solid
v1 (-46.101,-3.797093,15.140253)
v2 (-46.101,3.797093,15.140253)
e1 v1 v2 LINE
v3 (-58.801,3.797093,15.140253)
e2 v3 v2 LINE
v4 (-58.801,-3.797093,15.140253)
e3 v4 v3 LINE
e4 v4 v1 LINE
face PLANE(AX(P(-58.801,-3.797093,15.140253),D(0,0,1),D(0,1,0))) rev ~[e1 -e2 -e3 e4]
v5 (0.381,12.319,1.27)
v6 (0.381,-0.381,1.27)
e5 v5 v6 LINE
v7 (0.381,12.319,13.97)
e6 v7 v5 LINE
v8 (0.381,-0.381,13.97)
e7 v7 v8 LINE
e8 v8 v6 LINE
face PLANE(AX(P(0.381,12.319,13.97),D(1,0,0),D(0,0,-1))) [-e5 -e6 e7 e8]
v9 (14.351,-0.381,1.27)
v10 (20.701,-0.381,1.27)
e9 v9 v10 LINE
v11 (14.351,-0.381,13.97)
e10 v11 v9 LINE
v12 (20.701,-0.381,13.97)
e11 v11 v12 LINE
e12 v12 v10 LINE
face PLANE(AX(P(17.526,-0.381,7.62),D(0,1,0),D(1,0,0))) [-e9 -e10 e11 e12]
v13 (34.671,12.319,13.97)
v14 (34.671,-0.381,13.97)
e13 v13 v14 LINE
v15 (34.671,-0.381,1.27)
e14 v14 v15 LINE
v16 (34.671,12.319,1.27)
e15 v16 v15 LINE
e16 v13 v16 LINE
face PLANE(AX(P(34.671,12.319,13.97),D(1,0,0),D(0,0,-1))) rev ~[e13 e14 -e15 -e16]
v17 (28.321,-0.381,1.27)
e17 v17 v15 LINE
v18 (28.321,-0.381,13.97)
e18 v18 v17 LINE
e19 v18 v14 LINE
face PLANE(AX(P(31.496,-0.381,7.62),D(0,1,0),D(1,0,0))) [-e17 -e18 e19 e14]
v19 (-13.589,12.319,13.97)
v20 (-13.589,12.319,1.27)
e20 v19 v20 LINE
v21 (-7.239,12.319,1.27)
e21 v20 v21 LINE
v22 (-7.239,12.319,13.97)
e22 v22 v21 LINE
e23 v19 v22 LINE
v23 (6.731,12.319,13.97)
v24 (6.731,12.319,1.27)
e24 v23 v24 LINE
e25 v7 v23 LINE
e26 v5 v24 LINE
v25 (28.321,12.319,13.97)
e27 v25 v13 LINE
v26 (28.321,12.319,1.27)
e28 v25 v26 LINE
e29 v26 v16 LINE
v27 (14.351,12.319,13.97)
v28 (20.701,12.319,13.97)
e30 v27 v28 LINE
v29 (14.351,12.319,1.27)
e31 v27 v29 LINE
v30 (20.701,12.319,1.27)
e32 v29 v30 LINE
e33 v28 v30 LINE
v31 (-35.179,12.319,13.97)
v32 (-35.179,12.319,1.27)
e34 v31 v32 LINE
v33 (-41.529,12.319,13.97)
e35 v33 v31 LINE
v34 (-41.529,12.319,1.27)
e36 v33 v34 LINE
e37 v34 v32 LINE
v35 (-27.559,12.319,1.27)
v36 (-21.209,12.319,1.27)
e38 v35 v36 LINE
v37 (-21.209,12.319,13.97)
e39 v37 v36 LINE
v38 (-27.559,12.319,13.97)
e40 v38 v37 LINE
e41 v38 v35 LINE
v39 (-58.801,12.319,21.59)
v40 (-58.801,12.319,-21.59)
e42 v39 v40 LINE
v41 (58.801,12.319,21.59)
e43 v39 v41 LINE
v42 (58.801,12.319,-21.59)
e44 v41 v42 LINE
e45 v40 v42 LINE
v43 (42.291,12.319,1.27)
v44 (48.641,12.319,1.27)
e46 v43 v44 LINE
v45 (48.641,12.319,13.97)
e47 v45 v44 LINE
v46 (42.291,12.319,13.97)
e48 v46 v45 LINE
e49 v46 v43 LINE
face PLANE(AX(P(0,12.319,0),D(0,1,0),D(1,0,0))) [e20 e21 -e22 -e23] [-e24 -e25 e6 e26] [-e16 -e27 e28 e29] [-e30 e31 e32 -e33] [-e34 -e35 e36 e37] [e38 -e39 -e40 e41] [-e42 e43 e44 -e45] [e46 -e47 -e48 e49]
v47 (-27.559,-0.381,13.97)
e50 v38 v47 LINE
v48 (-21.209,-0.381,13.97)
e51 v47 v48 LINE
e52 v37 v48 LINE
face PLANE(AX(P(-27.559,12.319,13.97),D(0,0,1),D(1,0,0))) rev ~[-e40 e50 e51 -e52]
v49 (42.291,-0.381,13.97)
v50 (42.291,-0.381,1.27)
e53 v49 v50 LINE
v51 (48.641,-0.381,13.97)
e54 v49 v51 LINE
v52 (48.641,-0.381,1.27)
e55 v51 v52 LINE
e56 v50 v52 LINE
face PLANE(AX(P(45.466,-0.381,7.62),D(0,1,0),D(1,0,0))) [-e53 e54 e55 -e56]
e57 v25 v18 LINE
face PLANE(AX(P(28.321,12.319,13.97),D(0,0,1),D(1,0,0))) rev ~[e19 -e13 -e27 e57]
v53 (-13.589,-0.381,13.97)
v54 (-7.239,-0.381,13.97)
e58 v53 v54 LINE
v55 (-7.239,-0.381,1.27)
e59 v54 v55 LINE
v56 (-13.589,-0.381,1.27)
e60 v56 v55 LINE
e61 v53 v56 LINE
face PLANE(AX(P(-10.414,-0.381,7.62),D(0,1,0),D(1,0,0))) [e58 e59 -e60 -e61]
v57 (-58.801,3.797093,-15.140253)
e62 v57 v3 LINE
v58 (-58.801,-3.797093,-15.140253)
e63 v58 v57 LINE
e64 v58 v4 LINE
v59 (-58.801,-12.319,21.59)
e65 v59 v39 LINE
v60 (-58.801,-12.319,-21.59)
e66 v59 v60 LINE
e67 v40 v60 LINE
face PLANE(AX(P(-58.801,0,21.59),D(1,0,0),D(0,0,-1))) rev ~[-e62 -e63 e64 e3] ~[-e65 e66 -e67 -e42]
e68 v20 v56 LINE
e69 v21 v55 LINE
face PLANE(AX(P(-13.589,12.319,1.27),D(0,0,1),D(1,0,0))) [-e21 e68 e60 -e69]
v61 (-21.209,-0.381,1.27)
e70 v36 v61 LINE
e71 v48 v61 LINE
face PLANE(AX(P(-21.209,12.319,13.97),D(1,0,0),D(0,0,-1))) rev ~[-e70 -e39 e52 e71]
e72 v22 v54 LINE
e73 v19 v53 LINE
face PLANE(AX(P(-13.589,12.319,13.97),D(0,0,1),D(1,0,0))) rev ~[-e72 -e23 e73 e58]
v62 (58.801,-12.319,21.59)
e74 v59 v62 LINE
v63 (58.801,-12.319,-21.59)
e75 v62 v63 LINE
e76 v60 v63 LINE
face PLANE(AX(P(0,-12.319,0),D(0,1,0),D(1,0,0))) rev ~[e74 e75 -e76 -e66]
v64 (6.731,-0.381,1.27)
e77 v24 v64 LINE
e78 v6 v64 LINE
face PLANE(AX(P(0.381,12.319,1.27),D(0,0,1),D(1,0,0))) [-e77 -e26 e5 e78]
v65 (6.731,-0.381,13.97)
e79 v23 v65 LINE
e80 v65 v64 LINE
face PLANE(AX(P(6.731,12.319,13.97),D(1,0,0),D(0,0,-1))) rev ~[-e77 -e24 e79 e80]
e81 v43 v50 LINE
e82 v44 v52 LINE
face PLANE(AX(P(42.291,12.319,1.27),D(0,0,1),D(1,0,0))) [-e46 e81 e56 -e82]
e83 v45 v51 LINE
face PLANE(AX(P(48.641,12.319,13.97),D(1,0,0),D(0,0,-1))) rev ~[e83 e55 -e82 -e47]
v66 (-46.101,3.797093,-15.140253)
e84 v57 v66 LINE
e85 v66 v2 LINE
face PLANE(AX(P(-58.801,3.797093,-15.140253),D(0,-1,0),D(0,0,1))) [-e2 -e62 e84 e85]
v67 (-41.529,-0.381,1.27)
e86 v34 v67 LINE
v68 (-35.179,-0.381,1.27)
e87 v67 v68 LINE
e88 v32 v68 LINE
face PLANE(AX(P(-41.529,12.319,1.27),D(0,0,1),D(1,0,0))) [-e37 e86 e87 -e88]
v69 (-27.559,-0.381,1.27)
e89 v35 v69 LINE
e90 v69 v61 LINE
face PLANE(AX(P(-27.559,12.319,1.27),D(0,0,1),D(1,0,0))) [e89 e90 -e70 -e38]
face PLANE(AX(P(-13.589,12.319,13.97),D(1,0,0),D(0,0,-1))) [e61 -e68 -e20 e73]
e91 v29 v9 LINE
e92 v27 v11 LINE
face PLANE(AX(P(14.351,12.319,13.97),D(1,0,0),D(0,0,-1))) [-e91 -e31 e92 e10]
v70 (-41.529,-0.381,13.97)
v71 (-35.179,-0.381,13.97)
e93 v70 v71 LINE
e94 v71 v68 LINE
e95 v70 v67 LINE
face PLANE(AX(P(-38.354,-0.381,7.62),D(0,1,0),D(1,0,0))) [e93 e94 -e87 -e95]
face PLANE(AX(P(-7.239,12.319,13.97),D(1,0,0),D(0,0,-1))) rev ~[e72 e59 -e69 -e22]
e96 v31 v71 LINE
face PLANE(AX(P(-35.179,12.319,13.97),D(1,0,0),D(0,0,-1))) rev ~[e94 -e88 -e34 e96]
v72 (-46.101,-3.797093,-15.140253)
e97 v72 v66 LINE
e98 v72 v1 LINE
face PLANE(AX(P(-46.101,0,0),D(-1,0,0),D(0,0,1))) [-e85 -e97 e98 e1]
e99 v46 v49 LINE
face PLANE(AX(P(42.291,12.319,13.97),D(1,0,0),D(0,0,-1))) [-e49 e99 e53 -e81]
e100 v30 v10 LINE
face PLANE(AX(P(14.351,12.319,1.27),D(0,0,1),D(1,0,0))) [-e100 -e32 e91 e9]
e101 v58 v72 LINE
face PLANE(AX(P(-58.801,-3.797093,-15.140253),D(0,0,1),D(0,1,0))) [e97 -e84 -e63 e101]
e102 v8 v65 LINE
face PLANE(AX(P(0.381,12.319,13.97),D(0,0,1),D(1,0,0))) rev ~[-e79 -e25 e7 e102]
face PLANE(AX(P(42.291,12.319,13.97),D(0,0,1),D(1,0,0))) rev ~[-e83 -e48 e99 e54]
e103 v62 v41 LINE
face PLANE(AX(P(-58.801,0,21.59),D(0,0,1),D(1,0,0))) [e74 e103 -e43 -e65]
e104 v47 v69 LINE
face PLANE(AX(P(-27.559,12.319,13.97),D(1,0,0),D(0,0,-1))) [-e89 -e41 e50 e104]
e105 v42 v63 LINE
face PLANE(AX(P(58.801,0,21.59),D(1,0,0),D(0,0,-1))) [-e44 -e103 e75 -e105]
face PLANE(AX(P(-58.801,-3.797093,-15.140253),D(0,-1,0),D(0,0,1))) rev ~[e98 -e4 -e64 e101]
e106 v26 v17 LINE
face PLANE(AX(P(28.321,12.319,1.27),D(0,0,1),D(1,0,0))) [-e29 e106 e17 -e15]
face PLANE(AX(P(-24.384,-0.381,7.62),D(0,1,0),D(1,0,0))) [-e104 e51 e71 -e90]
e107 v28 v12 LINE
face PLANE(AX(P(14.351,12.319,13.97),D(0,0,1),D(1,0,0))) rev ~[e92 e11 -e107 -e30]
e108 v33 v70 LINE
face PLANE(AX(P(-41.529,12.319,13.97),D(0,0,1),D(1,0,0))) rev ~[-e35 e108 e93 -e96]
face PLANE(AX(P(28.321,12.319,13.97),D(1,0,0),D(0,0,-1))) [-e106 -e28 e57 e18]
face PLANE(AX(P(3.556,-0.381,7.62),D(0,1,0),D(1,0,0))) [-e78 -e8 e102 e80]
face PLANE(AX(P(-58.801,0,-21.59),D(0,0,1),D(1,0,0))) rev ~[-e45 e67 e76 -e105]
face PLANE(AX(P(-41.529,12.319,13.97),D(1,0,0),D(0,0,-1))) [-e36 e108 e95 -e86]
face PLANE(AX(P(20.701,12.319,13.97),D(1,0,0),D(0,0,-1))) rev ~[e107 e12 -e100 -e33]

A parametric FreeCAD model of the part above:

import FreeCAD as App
import Part
import Sketcher
Q = App.Units.Quantity

doc = App.newDocument("Part")
params = doc.addObject("Spreadsheet::Sheet", "Params")
for row, (alias, value) in enumerate([
    ("sketch1_height", "1.7 in"),
    ("sketch1_width", "4.63 in"),
    ("pad1_length", "0.97 in"),
    ("sketch2_height", "0.5 in"),
    ("sketch2_width", "0.25 in"),
    ("pocket1_length", "0.5 in"),
    ("pocket2_length", "0.5 in"),
], start=1):
    params.set(f"A{row}", alias)
    params.set(f"B{row}", "=" + value)
    params.setAlias(f"B{row}", alias)

body = doc.addObject("PartDesign::Body", "Body")

sketch1 = body.newObject("Sketcher::SketchObject", "Sketch")
sketch1.AttachmentSupport = (doc.getObject("XZ_Plane"), [""])
sketch1.MapMode = "FlatFace"
sketch1.addGeometry([
    Part.LineSegment(App.Vector(-59, -22, 0), App.Vector(-59, 22, 0)),
    Part.LineSegment(App.Vector(-59, 22, 0), App.Vector(59, 22, 0)),
    Part.LineSegment(App.Vector(59, 22, 0), App.Vector(59, -22, 0)),
    Part.LineSegment(App.Vector(59, -22, 0), App.Vector(-59, -22, 0)),
], False)
sketch1.addConstraint([
    Sketcher.Constraint("Coincident", 0, 2, 1, 1),
    Sketcher.Constraint("Coincident", 1, 2, 2, 1),
    Sketcher.Constraint("Coincident", 2, 2, 3, 1),
    Sketcher.Constraint("Coincident", 3, 2, 0, 1),
    Sketcher.Constraint("Vertical", 0),
    Sketcher.Constraint("Horizontal", 1),
    Sketcher.Constraint("Vertical", 2),
    Sketcher.Constraint("Horizontal", 3),
    Sketcher.Constraint("Symmetric", 0, 2, 2, 2, -1, 1),
    Sketcher.Constraint("DistanceY", 0, 1, 0, 2, Q("1.7 in")),
    Sketcher.Constraint("DistanceX", 1, 1, 1, 2, Q("4.63 in")),
])
sketch1.setExpression("Constraints[9]", "Params.sketch1_height")
sketch1.setExpression("Constraints[10]", "Params.sketch1_width")
pad1 = body.newObject("PartDesign::Pad", "Pad")
pad1.Profile = sketch1
pad1.setExpression("Length", "Params.pad1_length")
pad1.Midplane = True

sketch2 = body.newObject("Sketcher::SketchObject", "Sketch001")
sketch2.AttachmentSupport = (doc.getObject("XZ_Plane"), [""])
sketch2.MapMode = "FlatFace"
sketch2.AttachmentOffset = App.Placement(App.Vector(0, 0, -0.485 * 25.4), App.Rotation())
sketch2.addGeometry([
    Part.LineSegment(App.Vector(42, 1, 0), App.Vector(42, 14, 0)),
    Part.LineSegment(App.Vector(42, 14, 0), App.Vector(49, 14, 0)),
    Part.LineSegment(App.Vector(49, 14, 0), App.Vector(49, 1, 0)),
    Part.LineSegment(App.Vector(49, 1, 0), App.Vector(42, 1, 0)),
    Part.LineSegment(App.Vector(28, 1, 0), App.Vector(28, 14, 0)),
    Part.LineSegment(App.Vector(28, 14, 0), App.Vector(35, 14, 0)),
    Part.LineSegment(App.Vector(35, 14, 0), App.Vector(35, 1, 0)),
    Part.LineSegment(App.Vector(35, 1, 0), App.Vector(28, 1, 0)),
    Part.LineSegment(App.Vector(14, 1, 0), App.Vector(14, 14, 0)),
    Part.LineSegment(App.Vector(14, 14, 0), App.Vector(21, 14, 0)),
    Part.LineSegment(App.Vector(21, 14, 0), App.Vector(21, 1, 0)),
    Part.LineSegment(App.Vector(21, 1, 0), App.Vector(14, 1, 0)),
    Part.LineSegment(App.Vector(0, 1, 0), App.Vector(0, 14, 0)),
    Part.LineSegment(App.Vector(0, 14, 0), App.Vector(7, 14, 0)),
    Part.LineSegment(App.Vector(7, 14, 0), App.Vector(7, 1, 0)),
    Part.LineSegment(App.Vector(7, 1, 0), App.Vector(0, 1, 0)),
    Part.LineSegment(App.Vector(-14, 1, 0), App.Vector(-14, 14, 0)),
    Part.LineSegment(App.Vector(-14, 14, 0), App.Vector(-7, 14, 0)),
    Part.LineSegment(App.Vector(-7, 14, 0), App.Vector(-7, 1, 0)),
    Part.LineSegment(App.Vector(-7, 1, 0), App.Vector(-14, 1, 0)),
    Part.LineSegment(App.Vector(-28, 1, 0), App.Vector(-28, 14, 0)),
    Part.LineSegment(App.Vector(-28, 14, 0), App.Vector(-21, 14, 0)),
    Part.LineSegment(App.Vector(-21, 14, 0), App.Vector(-21, 1, 0)),
    Part.LineSegment(App.Vector(-21, 1, 0), App.Vector(-28, 1, 0)),
    Part.LineSegment(App.Vector(-42, 1, 0), App.Vector(-42, 14, 0)),
    Part.LineSegment(App.Vector(-42, 14, 0), App.Vector(-35, 14, 0)),
    Part.LineSegment(App.Vector(-35, 14, 0), App.Vector(-35, 1, 0)),
    Part.LineSegment(App.Vector(-35, 1, 0), App.Vector(-42, 1, 0)),
], False)
sketch2.addConstraint([
    Sketcher.Constraint("Coincident", 0, 2, 1, 1),
    Sketcher.Constraint("Coincident", 1, 2, 2, 1),
    Sketcher.Constraint("Coincident", 2, 2, 3, 1),
    Sketcher.Constraint("Coincident", 3, 2, 0, 1),
    Sketcher.Constraint("Coincident", 4, 2, 5, 1),
    Sketcher.Constraint("Coincident", 5, 2, 6, 1),
    Sketcher.Constraint("Coincident", 6, 2, 7, 1),
    Sketcher.Constraint("Coincident", 7, 2, 4, 1),
    Sketcher.Constraint("Coincident", 8, 2, 9, 1),
    Sketcher.Constraint("Coincident", 9, 2, 10, 1),
    Sketcher.Constraint("Coincident", 10, 2, 11, 1),
    Sketcher.Constraint("Coincident", 11, 2, 8, 1),
    Sketcher.Constraint("Coincident", 12, 2, 13, 1),
    Sketcher.Constraint("Coincident", 13, 2, 14, 1),
    Sketcher.Constraint("Coincident", 14, 2, 15, 1),
    Sketcher.Constraint("Coincident", 15, 2, 12, 1),
    Sketcher.Constraint("Coincident", 16, 2, 17, 1),
    Sketcher.Constraint("Coincident", 17, 2, 18, 1),
    Sketcher.Constraint("Coincident", 18, 2, 19, 1),
    Sketcher.Constraint("Coincident", 19, 2, 16, 1),
    Sketcher.Constraint("Coincident", 20, 2, 21, 1),
    Sketcher.Constraint("Coincident", 21, 2, 22, 1),
    Sketcher.Constraint("Coincident", 22, 2, 23, 1),
    Sketcher.Constraint("Coincident", 23, 2, 20, 1),
    Sketcher.Constraint("Coincident", 24, 2, 25, 1),
    Sketcher.Constraint("Coincident", 25, 2, 26, 1),
    Sketcher.Constraint("Coincident", 26, 2, 27, 1),
    Sketcher.Constraint("Coincident", 27, 2, 24, 1),
    Sketcher.Constraint("Vertical", 0),
    Sketcher.Constraint("Horizontal", 1),
    Sketcher.Constraint("Vertical", 2),
    Sketcher.Constraint("Horizontal", 3),
    Sketcher.Constraint("Vertical", 4),
    Sketcher.Constraint("Horizontal", 5),
    Sketcher.Constraint("Vertical", 6),
    Sketcher.Constraint("Horizontal", 7),
    Sketcher.Constraint("Vertical", 8),
    Sketcher.Constraint("Horizontal", 9),
    Sketcher.Constraint("Vertical", 10),
    Sketcher.Constraint("Horizontal", 11),
    Sketcher.Constraint("Vertical", 12),
    Sketcher.Constraint("Horizontal", 13),
    Sketcher.Constraint("Vertical", 14),
    Sketcher.Constraint("Horizontal", 15),
    Sketcher.Constraint("Vertical", 16),
    Sketcher.Constraint("Horizontal", 17),
    Sketcher.Constraint("Vertical", 18),
    Sketcher.Constraint("Horizontal", 19),
    Sketcher.Constraint("Vertical", 20),
    Sketcher.Constraint("Horizontal", 21),
    Sketcher.Constraint("Vertical", 22),
    Sketcher.Constraint("Horizontal", 23),
    Sketcher.Constraint("Vertical", 24),
    Sketcher.Constraint("Horizontal", 25),
    Sketcher.Constraint("Vertical", 26),
    Sketcher.Constraint("Horizontal", 27),
    Sketcher.Constraint("Horizontal", 1, 2, 4, 2),
    Sketcher.Constraint("Horizontal", 3, 2, 6, 2),
    Sketcher.Constraint("Horizontal", 5, 2, 8, 2),
    Sketcher.Constraint("Horizontal", 7, 2, 10, 2),
    Sketcher.Constraint("Horizontal", 9, 2, 12, 2),
    Sketcher.Constraint("Horizontal", 11, 2, 14, 2),
    Sketcher.Constraint("Horizontal", 13, 2, 16, 2),
    Sketcher.Constraint("Horizontal", 15, 2, 18, 2),
    Sketcher.Constraint("Horizontal", 17, 2, 20, 2),
    Sketcher.Constraint("Horizontal", 19, 2, 22, 2),
    Sketcher.Constraint("Horizontal", 21, 2, 24, 2),
    Sketcher.Constraint("Horizontal", 23, 2, 26, 2),
    Sketcher.Constraint("Equal", 3, 5),
    Sketcher.Constraint("Equal", 7, 9),
    Sketcher.Constraint("Equal", 11, 13),
    Sketcher.Constraint("Equal", 15, 17),
    Sketcher.Constraint("Equal", 19, 21),
    Sketcher.Constraint("Equal", 23, 25),
    Sketcher.Constraint("DistanceY", 0, 1, 0, 2, Q("0.5 in")),
    Sketcher.Constraint("DistanceX", 1, 1, 1, 2, Q("0.25 in")),
    Sketcher.Constraint("DistanceX", 4, 2, 1, 2, Q("0.8 in")),
    Sketcher.Constraint("DistanceX", 8, 2, 5, 2, Q("0.8 in")),
    Sketcher.Constraint("DistanceX", 12, 2, 9, 2, Q("0.8 in")),
    Sketcher.Constraint("DistanceX", 16, 2, 13, 2, Q("0.8 in")),
    Sketcher.Constraint("DistanceX", 20, 2, 17, 2, Q("0.8 in")),
    Sketcher.Constraint("DistanceX", 24, 2, 21, 2, Q("0.8 in")),
    Sketcher.Constraint("DistanceY", -1, 1, 0, 2, Q("0.55 in")),
    Sketcher.Constraint("DistanceX", -1, 1, 0, 2, Q("1.665 in")),
])
sketch2.setExpression("Constraints[74]", "Params.sketch2_height")
sketch2.setExpression("Constraints[75]", "Params.sketch2_width")
pocket1 = body.newObject("PartDesign::Pocket", "Pocket")
pocket1.Profile = sketch2
pocket1.setExpression("Length", "Params.pocket1_length")
pocket1.Reversed = True

sketch3 = body.newObject("Sketcher::SketchObject", "Sketch002")
sketch3.AttachmentSupport = (doc.getObject("YZ_Plane"), [""])
sketch3.MapMode = "FlatFace"
sketch3.AttachmentOffset = App.Placement(App.Vector(0, 0, -2.315 * 25.4), App.Rotation())
sketch3.addGeometry([
    Part.LineSegment(App.Vector(4, -15, 0), App.Vector(-4, -15, 0)),
    Part.LineSegment(App.Vector(-4, -15, 0), App.Vector(-4, 15, 0)),
    Part.LineSegment(App.Vector(-4, 15, 0), App.Vector(4, 15, 0)),
    Part.LineSegment(App.Vector(4, 15, 0), App.Vector(4, -15, 0)),
], False)
sketch3.addConstraint([
    Sketcher.Constraint("Coincident", 0, 2, 1, 1),
    Sketcher.Constraint("Coincident", 1, 2, 2, 1),
    Sketcher.Constraint("Coincident", 2, 2, 3, 1),
    Sketcher.Constraint("Coincident", 3, 2, 0, 1),
    Sketcher.Constraint("Horizontal", 0),
    Sketcher.Constraint("Vertical", 1),
    Sketcher.Constraint("Horizontal", 2),
    Sketcher.Constraint("Vertical", 3),
    Sketcher.Constraint("Symmetric", 0, 2, 2, 2, -1, 1),
    Sketcher.Constraint("DistanceX", 0, 2, 0, 1, 7.594187),
    Sketcher.Constraint("DistanceY", 1, 1, 1, 2, 30.280505),
])
pocket2 = body.newObject("PartDesign::Pocket", "Pocket001")
pocket2.Profile = sketch3
pocket2.setExpression("Length", "Params.pocket2_length")
pocket2.Reversed = True

doc.recompute()
